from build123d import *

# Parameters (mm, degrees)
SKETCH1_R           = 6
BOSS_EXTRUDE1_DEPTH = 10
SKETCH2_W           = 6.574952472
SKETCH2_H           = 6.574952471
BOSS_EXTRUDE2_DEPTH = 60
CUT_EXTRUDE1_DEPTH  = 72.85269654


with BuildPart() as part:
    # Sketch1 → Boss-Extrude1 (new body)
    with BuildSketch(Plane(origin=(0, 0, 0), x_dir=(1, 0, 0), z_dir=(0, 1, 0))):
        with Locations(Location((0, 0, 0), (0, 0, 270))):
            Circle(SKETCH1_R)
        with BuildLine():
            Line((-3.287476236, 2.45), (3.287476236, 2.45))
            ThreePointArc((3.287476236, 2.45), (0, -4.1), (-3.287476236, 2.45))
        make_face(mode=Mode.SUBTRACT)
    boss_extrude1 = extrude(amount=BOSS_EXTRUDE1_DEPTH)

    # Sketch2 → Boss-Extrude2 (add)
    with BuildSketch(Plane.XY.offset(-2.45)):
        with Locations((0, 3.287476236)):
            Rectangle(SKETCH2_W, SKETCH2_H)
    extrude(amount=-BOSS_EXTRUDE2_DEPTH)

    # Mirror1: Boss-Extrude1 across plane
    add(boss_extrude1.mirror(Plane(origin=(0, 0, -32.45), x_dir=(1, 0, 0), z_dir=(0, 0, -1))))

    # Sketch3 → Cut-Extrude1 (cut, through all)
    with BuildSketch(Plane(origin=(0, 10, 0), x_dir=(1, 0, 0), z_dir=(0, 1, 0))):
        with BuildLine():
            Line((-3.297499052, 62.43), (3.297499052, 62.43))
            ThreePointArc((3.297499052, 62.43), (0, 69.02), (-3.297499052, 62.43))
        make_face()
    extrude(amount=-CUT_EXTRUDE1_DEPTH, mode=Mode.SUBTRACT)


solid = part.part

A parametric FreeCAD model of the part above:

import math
import FreeCAD as App
import Part
import Sketcher
from FreeCAD import Vector
Q = App.Units.Quantity


def add_polygon(sketch, points):
    """Adds a closed chain of lines whose ends are joined by coincident constraints."""
    first, n = sketch.GeometryCount, len(points)
    for a, b in zip(points, points[1:] + points[:1]):
        sketch.addGeometry(Part.LineSegment(App.Vector(*a, 0), App.Vector(*b, 0)), False)
    for i in range(n):
        sketch.addConstraint(Sketcher.Constraint("Coincident", first + i, 2, first + (i + 1) % n, 1))

doc = App.newDocument("Part")
body = doc.addObject("PartDesign::Body", "Body")

sketch1 = body.newObject("Sketcher::SketchObject", "Sketch")
sketch1.AttachmentSupport = (doc.getObject("XZ_Plane"), [""])
sketch1.MapMode = "FlatFace"
sketch1.addGeometry([
    Part.Circle(Vector(0, 0, 0), Vector(0, 0, 1), 6),
    Part.ArcOfCircle(Part.Circle(Vector(0, 0, 0), Vector(0, 0, 1), 4.1), math.radians(-36.695414), math.radians(216.695414)),
    Part.LineSegment(Vector(-3.287476, -2.45, 0), Vector(3.287476, -2.45, 0)),
], False)
sketch1.addConstraint([
    Sketcher.Constraint("Coincident", 1, 1, 2, 2),
    Sketcher.Constraint("Coincident", 2, 1, 1, 2),
    Sketcher.Constraint("Horizontal", 2),
    Sketcher.Constraint("Coincident", 0, 3, -1, 1),
    Sketcher.Constraint("Coincident", 1, 3, -1, 1),
    Sketcher.Constraint("Diameter", 0, Q("12 mm")),
    Sketcher.Constraint("Radius", 1, Q("4.1 mm")),
    Sketcher.Constraint("DistanceY", 1, 1, -1, 1, Q("2.45 mm")),
])
pad1 = body.newObject("PartDesign::Pad", "Pad")
pad1.Profile = sketch1
pad1.Length = 10
pad1.Reversed = True

sketch2 = body.newObject("Sketcher::SketchObject", "Sketch001")
sketch2.AttachmentSupport = (doc.getObject("XY_Plane"), [""])
sketch2.MapMode = "FlatFace"
sketch2.AttachmentOffset = App.Placement(Vector(0, 0, -2.45), App.Rotation())
add_polygon(sketch2, [(-3.287476, 6.574952), (-3.287476, 0), (3.287476, 0), (3.287476, 6.574952)])
sketch2.addConstraint([
    Sketcher.Constraint("Vertical", 0),
    Sketcher.Constraint("Horizontal", 1),
    Sketcher.Constraint("Vertical", 2),
    Sketcher.Constraint("Horizontal", 3),
    Sketcher.Constraint("Symmetric", 0, 2, 1, 2, -1, 1),
    Sketcher.Constraint("Equal", 3, 0),
    Sketcher.Constraint("DistanceX", 1, 1, 1, 2, Q("6.574952 mm")),
])
pad2 = body.newObject("PartDesign::Pad", "Pad001")
pad2.Profile = sketch2
pad2.Length = 60
pad2.Reversed = True
doc.recompute()

datumplane = body.newObject("PartDesign::Plane", "DatumPlane")
datumplane.AttachmentSupport = (doc.getObject("XY_Plane"), [""])
datumplane.MapMode = "FlatFace"
datumplane.AttachmentOffset = App.Placement(Vector(0, 0, -32.45), App.Rotation())
mirrored = body.newObject("PartDesign::Mirrored", "Mirrored")
mirrored.Originals = [pad1]
mirrored.MirrorPlane = (datumplane, [""])
body.Tip = mirrored

sketch3 = body.newObject("Sketcher::SketchObject", "Sketch002")
sketch3.AttachmentSupport = (doc.getObject("XZ_Plane"), [""])
sketch3.MapMode = "FlatFace"
sketch3.AttachmentOffset = App.Placement(Vector(0, 0, -10), App.Rotation())
sketch3.addGeometry([
    Part.LineSegment(Vector(-3.297499, -62.43, 0), Vector(3.297499, -62.43, 0)),
    Part.ArcOfCircle(Part.Circle(Vector(0, -64.9, 0), Vector(0, 0, 1), 4.12), math.radians(143.164861), math.radians(396.835139)),
], False)
sketch3.addConstraint([
    Sketcher.Constraint("Coincident", 0, 1, 1, 1),
    Sketcher.Constraint("Coincident", 1, 2, 0, 2),
    Sketcher.Constraint("Horizontal", 0),
    Sketcher.Constraint("PointOnObject", 1, 3, -2),
    Sketcher.Constraint("Radius", 1, Q("4.12 mm")),
    Sketcher.Constraint("DistanceY", 1, 3, -1, 1, Q("64.9 mm")),
    Sketcher.Constraint("DistanceX", 0, 1, 0, 2, Q("6.594998 mm")),
])
pocket1 = body.newObject("PartDesign::Pocket", "Pocket")
pocket1.Profile = sketch3
pocket1.Type = "ThroughAll"
pocket1.Reversed = True

doc.recompute()
